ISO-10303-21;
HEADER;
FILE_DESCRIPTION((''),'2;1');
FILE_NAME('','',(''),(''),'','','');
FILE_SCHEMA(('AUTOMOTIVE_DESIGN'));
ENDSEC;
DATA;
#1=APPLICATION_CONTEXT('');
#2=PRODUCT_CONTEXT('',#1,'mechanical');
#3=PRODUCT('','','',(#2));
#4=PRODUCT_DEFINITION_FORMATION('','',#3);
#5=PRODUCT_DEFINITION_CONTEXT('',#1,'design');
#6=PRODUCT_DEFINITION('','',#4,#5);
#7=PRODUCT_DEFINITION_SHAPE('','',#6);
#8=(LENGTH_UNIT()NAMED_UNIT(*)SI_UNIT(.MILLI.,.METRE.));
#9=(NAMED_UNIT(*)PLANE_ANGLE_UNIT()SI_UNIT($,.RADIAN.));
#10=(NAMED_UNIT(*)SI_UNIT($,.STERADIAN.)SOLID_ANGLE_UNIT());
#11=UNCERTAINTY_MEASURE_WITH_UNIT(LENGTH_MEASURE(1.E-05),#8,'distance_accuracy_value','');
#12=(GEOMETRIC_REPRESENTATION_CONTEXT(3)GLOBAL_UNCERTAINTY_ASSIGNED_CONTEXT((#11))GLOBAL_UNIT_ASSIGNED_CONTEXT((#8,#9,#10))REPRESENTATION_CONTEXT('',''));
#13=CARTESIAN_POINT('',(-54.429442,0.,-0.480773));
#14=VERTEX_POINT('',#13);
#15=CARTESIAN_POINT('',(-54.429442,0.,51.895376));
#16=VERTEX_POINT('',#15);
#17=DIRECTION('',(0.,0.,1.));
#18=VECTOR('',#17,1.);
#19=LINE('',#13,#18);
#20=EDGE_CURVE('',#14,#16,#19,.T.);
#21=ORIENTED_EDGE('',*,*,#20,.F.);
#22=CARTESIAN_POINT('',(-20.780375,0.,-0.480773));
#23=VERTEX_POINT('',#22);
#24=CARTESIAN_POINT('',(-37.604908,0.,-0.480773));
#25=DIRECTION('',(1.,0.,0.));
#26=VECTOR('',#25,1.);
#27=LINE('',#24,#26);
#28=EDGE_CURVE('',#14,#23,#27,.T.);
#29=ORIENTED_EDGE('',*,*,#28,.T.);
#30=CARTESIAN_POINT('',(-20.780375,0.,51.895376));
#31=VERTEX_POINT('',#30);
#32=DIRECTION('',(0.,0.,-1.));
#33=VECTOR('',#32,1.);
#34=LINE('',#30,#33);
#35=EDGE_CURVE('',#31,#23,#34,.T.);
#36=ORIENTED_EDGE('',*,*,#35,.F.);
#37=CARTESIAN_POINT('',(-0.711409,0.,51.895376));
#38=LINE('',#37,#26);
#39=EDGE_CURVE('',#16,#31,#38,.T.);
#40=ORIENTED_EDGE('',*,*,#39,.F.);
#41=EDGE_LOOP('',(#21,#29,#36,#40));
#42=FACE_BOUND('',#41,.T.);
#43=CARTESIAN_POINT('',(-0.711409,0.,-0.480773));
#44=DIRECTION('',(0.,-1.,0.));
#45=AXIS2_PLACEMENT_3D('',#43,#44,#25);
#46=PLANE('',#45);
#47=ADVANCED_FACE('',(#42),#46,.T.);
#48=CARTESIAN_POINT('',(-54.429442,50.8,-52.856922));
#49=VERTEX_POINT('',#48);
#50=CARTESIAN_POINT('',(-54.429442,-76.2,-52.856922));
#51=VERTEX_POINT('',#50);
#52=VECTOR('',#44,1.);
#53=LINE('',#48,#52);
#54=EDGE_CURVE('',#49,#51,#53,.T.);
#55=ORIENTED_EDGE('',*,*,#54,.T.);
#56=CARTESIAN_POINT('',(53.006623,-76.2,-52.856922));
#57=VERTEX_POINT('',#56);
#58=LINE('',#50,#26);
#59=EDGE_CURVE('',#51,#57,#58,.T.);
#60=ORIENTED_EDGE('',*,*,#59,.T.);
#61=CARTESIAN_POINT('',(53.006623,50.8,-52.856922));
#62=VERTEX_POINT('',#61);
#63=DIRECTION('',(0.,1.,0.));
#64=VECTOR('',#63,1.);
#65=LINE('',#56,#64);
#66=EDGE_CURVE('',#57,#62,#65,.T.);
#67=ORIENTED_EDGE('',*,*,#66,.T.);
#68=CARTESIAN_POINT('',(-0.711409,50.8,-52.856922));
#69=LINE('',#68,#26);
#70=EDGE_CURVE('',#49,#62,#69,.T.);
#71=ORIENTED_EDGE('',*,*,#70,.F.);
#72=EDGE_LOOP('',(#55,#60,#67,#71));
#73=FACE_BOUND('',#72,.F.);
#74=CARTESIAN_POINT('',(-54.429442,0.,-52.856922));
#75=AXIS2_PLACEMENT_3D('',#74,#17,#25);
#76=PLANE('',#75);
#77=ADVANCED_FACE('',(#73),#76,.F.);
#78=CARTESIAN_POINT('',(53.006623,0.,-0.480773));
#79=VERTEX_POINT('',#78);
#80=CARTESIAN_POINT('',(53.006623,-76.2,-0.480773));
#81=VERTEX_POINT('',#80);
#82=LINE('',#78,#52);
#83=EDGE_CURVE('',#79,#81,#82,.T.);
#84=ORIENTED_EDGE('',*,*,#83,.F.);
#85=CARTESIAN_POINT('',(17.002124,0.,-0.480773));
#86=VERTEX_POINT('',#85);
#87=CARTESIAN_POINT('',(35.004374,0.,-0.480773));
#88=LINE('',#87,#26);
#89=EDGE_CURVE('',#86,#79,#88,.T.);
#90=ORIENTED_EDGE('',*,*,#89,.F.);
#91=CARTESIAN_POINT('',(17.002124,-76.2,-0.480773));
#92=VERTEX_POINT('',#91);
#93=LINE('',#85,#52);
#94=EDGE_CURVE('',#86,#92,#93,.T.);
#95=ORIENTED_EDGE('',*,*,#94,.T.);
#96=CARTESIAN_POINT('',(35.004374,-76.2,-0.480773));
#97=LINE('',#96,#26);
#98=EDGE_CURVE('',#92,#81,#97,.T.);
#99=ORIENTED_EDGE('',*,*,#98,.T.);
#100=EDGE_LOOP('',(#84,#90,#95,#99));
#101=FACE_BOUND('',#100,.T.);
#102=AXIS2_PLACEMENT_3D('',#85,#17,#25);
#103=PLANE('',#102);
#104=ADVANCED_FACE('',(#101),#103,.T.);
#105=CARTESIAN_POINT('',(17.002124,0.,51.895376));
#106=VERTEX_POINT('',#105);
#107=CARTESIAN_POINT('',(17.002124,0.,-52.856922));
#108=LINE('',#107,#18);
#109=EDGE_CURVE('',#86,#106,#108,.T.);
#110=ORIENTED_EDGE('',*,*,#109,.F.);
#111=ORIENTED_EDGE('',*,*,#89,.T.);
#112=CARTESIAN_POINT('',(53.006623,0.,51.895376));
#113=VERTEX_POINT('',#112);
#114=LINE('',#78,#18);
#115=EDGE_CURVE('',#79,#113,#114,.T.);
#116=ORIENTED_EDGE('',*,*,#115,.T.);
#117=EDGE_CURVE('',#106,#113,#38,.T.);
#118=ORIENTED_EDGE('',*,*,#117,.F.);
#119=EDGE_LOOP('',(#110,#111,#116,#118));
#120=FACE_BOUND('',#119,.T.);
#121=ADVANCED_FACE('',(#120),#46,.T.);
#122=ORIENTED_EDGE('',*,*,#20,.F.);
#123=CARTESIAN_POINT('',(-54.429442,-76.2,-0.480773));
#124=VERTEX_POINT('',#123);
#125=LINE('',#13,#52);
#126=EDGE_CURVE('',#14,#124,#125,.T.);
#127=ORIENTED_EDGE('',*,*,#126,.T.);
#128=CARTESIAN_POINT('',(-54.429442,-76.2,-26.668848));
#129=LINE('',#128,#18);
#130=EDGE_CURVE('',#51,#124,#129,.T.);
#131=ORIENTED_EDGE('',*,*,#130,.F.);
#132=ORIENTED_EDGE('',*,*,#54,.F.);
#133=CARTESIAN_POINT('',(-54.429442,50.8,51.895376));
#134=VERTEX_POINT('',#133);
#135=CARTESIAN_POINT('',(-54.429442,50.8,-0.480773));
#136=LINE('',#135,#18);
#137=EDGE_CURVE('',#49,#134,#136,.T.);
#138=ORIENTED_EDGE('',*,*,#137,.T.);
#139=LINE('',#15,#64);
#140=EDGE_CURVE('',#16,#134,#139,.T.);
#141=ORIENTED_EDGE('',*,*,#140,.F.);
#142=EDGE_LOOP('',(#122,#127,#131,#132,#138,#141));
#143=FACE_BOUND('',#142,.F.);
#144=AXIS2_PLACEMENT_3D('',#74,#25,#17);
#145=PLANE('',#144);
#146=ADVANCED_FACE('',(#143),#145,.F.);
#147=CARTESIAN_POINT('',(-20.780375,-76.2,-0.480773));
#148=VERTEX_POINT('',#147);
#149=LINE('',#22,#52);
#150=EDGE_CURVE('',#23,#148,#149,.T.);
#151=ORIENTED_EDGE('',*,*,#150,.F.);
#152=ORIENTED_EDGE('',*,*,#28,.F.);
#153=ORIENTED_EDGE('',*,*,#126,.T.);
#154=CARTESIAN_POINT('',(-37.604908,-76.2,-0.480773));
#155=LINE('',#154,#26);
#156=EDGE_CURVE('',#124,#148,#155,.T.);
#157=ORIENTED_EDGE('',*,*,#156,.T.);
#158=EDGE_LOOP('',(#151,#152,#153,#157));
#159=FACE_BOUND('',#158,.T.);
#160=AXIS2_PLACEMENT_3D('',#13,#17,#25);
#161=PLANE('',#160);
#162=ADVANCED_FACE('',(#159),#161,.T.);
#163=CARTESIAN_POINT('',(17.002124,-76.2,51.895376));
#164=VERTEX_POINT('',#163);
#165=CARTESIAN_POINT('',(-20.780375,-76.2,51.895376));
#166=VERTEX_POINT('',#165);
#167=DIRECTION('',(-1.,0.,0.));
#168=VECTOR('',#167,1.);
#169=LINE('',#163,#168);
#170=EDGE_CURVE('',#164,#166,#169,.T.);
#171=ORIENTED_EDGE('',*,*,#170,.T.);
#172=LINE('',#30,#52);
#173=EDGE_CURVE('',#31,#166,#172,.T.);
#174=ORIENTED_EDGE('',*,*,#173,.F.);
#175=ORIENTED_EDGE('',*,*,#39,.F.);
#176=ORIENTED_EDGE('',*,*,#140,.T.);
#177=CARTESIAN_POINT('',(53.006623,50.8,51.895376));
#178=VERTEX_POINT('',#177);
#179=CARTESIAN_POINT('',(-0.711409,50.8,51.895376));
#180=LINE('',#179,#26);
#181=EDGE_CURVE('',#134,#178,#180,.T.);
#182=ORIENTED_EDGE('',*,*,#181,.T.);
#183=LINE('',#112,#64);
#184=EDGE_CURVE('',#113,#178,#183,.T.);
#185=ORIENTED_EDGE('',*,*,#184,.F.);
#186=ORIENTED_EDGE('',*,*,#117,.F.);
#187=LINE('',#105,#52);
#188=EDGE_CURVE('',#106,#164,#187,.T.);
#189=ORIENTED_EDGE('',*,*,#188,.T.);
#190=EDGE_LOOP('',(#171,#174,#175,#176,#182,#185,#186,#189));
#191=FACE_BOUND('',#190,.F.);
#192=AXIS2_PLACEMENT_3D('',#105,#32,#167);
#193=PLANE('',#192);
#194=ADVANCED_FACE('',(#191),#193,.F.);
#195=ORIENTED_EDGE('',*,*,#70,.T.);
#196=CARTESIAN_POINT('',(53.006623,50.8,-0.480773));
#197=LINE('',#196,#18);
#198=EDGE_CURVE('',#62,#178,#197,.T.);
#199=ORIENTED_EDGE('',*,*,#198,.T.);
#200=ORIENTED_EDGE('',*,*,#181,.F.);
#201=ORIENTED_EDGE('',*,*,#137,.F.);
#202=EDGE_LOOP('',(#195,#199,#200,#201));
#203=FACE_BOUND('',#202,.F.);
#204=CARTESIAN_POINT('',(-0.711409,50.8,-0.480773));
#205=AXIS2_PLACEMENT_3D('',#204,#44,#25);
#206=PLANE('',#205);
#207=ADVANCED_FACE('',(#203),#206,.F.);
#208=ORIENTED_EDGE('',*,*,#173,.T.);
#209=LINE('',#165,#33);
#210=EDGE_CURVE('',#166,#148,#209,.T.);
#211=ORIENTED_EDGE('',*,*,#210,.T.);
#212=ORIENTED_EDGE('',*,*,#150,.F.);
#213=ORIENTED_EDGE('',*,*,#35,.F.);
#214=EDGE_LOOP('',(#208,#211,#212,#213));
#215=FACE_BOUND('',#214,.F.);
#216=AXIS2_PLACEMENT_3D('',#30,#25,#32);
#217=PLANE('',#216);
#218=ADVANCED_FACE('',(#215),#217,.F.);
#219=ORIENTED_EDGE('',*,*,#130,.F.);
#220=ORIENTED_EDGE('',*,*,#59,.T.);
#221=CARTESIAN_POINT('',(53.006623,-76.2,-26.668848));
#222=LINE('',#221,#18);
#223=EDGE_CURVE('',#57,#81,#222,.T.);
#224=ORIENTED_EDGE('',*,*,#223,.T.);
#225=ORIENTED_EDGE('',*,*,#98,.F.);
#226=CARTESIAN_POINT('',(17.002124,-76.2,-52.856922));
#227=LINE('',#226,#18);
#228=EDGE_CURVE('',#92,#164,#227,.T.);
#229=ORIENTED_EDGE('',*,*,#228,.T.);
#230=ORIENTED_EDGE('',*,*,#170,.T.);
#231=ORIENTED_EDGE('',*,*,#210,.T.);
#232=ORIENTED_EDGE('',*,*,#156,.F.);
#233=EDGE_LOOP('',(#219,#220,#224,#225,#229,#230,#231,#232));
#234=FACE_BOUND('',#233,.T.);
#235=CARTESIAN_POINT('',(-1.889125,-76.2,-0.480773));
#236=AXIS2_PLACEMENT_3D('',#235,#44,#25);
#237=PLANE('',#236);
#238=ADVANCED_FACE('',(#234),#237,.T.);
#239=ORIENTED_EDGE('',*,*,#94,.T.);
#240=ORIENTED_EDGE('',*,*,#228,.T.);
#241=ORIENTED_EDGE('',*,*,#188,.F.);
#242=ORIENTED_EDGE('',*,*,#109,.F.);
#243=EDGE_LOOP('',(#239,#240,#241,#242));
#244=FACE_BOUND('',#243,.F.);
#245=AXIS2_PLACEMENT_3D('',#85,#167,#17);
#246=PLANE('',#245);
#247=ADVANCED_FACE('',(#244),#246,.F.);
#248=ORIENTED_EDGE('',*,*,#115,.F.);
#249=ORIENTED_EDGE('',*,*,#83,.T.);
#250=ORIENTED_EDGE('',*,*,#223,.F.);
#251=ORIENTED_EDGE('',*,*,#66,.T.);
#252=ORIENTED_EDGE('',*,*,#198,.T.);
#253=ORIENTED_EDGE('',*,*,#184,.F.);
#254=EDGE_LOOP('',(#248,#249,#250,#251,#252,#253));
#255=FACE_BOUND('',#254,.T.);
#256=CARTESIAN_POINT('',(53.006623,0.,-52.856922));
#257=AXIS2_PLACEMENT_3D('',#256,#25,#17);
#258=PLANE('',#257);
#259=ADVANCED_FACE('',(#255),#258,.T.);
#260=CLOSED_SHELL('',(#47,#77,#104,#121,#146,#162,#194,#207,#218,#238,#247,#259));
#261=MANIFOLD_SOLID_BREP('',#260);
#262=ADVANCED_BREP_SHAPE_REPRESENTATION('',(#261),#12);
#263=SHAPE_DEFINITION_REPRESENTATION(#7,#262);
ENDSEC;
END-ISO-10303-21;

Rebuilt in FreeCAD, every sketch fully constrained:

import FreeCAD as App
import Part
import Sketcher
from FreeCAD import Vector
Q = App.Units.Quantity

doc = App.newDocument("Part")
body = doc.addObject("PartDesign::Body", "Body")

sketch1 = body.newObject("Sketcher::SketchObject", "Sketch")
sketch1.AttachmentSupport = (doc.getObject("XZ_Plane"), [""])
sketch1.MapMode = "FlatFace"
sketch1.addGeometry([
    Part.LineSegment(Vector(-54, 52, 0), Vector(-54, -53, 0)),
    Part.LineSegment(Vector(-54, -53, 0), Vector(53, -53, 0)),
    Part.LineSegment(Vector(53, -53, 0), Vector(53, 52, 0)),
    Part.LineSegment(Vector(53, 52, 0), Vector(-54, 52, 0)),
], False)
sketch1.addConstraint([
    Sketcher.Constraint("Coincident", 0, 2, 1, 1),
    Sketcher.Constraint("Coincident", 1, 2, 2, 1),
    Sketcher.Constraint("Coincident", 2, 2, 3, 1),
    Sketcher.Constraint("Coincident", 3, 2, 0, 1),
    Sketcher.Constraint("Vertical", 0),
    Sketcher.Constraint("Horizontal", 1),
    Sketcher.Constraint("Vertical", 2),
    Sketcher.Constraint("Horizontal", 3),
    Sketcher.Constraint("DistanceY", 0, 2, 0, 1, Q("104.752298 mm")),
    Sketcher.Constraint("DistanceX", 1, 1, 1, 2, Q("107.436065 mm")),
    Sketcher.Constraint("DistanceX", 0, 2, -1, 1, Q("54.429442 mm")),
    Sketcher.Constraint("DistanceY", 0, 2, -1, 1, Q("52.856922 mm")),
])
pad1 = body.newObject("PartDesign::Pad", "Pad")
pad1.Profile = sketch1
pad1.Length = Q("2 in")
pad1.Reversed = True

sketch2 = body.newObject("Sketcher::SketchObject", "Sketch001")
sketch2.AttachmentSupport = (doc.getObject("XZ_Plane"), [""])
sketch2.MapMode = "FlatFace"
sketch2.addGeometry([
    Part.LineSegment(Vector(17, 52, 0), Vector(-21, 52, 0)),
    Part.LineSegment(Vector(-21, 52, 0), Vector(-21, 0, 0)),
    Part.LineSegment(Vector(-21, 0, 0), Vector(-54, 0, 0)),
    Part.LineSegment(Vector(-54, 0, 0), Vector(-54, -53, 0)),
    Part.LineSegment(Vector(-54, -53, 0), Vector(53, -53, 0)),
    Part.LineSegment(Vector(53, -53, 0), Vector(53, 0, 0)),
    Part.LineSegment(Vector(53, 0, 0), Vector(17, 0, 0)),
    Part.LineSegment(Vector(17, 0, 0), Vector(17, 52, 0)),
], False)
sketch2.addConstraint([
    Sketcher.Constraint("Coincident", 0, 2, 1, 1),
    Sketcher.Constraint("Coincident", 1, 2, 2, 1),
    Sketcher.Constraint("Coincident", 2, 2, 3, 1),
    Sketcher.Constraint("Coincident", 3, 2, 4, 1),
    Sketcher.Constraint("Coincident", 4, 2, 5, 1),
    Sketcher.Constraint("Coincident", 5, 2, 6, 1),
    Sketcher.Constraint("Coincident", 6, 2, 7, 1),
    Sketcher.Constraint("Coincident", 7, 2, 0, 1),
    Sketcher.Constraint("Horizontal", 0),
    Sketcher.Constraint("Vertical", 1),
    Sketcher.Constraint("Horizontal", 2),
    Sketcher.Constraint("Vertical", 3),
    Sketcher.Constraint("Horizontal", 4),
    Sketcher.Constraint("Vertical", 5),
    Sketcher.Constraint("Horizontal", 6),
    Sketcher.Constraint("Vertical", 7),
    Sketcher.Constraint("Horizontal", 2, 2, 5, 2),
    Sketcher.Constraint("Equal", 1, 3),
    Sketcher.Constraint("DistanceX", 0, 2, 0, 1, Q("1.4875 in")),
    Sketcher.Constraint("DistanceX", 6, 2, 6, 1, Q("1.4174999 in")),
    Sketcher.Constraint("DistanceY", 1, 2, 1, 1, Q("52.376149 mm")),
    Sketcher.Constraint("DistanceX", 2, 2, 2, 1, Q("33.649066 mm")),
    Sketcher.Constraint("DistanceX", 2, 2, -1, 1, Q("54.429442 mm")),
    Sketcher.Constraint("DistanceY", -1, 1, 0, 2, Q("51.895376 mm")),
])
pad2 = body.newObject("PartDesign::Pad", "Pad001")
pad2.Profile = sketch2
pad2.Length = Q("3 in")

doc.recompute()
